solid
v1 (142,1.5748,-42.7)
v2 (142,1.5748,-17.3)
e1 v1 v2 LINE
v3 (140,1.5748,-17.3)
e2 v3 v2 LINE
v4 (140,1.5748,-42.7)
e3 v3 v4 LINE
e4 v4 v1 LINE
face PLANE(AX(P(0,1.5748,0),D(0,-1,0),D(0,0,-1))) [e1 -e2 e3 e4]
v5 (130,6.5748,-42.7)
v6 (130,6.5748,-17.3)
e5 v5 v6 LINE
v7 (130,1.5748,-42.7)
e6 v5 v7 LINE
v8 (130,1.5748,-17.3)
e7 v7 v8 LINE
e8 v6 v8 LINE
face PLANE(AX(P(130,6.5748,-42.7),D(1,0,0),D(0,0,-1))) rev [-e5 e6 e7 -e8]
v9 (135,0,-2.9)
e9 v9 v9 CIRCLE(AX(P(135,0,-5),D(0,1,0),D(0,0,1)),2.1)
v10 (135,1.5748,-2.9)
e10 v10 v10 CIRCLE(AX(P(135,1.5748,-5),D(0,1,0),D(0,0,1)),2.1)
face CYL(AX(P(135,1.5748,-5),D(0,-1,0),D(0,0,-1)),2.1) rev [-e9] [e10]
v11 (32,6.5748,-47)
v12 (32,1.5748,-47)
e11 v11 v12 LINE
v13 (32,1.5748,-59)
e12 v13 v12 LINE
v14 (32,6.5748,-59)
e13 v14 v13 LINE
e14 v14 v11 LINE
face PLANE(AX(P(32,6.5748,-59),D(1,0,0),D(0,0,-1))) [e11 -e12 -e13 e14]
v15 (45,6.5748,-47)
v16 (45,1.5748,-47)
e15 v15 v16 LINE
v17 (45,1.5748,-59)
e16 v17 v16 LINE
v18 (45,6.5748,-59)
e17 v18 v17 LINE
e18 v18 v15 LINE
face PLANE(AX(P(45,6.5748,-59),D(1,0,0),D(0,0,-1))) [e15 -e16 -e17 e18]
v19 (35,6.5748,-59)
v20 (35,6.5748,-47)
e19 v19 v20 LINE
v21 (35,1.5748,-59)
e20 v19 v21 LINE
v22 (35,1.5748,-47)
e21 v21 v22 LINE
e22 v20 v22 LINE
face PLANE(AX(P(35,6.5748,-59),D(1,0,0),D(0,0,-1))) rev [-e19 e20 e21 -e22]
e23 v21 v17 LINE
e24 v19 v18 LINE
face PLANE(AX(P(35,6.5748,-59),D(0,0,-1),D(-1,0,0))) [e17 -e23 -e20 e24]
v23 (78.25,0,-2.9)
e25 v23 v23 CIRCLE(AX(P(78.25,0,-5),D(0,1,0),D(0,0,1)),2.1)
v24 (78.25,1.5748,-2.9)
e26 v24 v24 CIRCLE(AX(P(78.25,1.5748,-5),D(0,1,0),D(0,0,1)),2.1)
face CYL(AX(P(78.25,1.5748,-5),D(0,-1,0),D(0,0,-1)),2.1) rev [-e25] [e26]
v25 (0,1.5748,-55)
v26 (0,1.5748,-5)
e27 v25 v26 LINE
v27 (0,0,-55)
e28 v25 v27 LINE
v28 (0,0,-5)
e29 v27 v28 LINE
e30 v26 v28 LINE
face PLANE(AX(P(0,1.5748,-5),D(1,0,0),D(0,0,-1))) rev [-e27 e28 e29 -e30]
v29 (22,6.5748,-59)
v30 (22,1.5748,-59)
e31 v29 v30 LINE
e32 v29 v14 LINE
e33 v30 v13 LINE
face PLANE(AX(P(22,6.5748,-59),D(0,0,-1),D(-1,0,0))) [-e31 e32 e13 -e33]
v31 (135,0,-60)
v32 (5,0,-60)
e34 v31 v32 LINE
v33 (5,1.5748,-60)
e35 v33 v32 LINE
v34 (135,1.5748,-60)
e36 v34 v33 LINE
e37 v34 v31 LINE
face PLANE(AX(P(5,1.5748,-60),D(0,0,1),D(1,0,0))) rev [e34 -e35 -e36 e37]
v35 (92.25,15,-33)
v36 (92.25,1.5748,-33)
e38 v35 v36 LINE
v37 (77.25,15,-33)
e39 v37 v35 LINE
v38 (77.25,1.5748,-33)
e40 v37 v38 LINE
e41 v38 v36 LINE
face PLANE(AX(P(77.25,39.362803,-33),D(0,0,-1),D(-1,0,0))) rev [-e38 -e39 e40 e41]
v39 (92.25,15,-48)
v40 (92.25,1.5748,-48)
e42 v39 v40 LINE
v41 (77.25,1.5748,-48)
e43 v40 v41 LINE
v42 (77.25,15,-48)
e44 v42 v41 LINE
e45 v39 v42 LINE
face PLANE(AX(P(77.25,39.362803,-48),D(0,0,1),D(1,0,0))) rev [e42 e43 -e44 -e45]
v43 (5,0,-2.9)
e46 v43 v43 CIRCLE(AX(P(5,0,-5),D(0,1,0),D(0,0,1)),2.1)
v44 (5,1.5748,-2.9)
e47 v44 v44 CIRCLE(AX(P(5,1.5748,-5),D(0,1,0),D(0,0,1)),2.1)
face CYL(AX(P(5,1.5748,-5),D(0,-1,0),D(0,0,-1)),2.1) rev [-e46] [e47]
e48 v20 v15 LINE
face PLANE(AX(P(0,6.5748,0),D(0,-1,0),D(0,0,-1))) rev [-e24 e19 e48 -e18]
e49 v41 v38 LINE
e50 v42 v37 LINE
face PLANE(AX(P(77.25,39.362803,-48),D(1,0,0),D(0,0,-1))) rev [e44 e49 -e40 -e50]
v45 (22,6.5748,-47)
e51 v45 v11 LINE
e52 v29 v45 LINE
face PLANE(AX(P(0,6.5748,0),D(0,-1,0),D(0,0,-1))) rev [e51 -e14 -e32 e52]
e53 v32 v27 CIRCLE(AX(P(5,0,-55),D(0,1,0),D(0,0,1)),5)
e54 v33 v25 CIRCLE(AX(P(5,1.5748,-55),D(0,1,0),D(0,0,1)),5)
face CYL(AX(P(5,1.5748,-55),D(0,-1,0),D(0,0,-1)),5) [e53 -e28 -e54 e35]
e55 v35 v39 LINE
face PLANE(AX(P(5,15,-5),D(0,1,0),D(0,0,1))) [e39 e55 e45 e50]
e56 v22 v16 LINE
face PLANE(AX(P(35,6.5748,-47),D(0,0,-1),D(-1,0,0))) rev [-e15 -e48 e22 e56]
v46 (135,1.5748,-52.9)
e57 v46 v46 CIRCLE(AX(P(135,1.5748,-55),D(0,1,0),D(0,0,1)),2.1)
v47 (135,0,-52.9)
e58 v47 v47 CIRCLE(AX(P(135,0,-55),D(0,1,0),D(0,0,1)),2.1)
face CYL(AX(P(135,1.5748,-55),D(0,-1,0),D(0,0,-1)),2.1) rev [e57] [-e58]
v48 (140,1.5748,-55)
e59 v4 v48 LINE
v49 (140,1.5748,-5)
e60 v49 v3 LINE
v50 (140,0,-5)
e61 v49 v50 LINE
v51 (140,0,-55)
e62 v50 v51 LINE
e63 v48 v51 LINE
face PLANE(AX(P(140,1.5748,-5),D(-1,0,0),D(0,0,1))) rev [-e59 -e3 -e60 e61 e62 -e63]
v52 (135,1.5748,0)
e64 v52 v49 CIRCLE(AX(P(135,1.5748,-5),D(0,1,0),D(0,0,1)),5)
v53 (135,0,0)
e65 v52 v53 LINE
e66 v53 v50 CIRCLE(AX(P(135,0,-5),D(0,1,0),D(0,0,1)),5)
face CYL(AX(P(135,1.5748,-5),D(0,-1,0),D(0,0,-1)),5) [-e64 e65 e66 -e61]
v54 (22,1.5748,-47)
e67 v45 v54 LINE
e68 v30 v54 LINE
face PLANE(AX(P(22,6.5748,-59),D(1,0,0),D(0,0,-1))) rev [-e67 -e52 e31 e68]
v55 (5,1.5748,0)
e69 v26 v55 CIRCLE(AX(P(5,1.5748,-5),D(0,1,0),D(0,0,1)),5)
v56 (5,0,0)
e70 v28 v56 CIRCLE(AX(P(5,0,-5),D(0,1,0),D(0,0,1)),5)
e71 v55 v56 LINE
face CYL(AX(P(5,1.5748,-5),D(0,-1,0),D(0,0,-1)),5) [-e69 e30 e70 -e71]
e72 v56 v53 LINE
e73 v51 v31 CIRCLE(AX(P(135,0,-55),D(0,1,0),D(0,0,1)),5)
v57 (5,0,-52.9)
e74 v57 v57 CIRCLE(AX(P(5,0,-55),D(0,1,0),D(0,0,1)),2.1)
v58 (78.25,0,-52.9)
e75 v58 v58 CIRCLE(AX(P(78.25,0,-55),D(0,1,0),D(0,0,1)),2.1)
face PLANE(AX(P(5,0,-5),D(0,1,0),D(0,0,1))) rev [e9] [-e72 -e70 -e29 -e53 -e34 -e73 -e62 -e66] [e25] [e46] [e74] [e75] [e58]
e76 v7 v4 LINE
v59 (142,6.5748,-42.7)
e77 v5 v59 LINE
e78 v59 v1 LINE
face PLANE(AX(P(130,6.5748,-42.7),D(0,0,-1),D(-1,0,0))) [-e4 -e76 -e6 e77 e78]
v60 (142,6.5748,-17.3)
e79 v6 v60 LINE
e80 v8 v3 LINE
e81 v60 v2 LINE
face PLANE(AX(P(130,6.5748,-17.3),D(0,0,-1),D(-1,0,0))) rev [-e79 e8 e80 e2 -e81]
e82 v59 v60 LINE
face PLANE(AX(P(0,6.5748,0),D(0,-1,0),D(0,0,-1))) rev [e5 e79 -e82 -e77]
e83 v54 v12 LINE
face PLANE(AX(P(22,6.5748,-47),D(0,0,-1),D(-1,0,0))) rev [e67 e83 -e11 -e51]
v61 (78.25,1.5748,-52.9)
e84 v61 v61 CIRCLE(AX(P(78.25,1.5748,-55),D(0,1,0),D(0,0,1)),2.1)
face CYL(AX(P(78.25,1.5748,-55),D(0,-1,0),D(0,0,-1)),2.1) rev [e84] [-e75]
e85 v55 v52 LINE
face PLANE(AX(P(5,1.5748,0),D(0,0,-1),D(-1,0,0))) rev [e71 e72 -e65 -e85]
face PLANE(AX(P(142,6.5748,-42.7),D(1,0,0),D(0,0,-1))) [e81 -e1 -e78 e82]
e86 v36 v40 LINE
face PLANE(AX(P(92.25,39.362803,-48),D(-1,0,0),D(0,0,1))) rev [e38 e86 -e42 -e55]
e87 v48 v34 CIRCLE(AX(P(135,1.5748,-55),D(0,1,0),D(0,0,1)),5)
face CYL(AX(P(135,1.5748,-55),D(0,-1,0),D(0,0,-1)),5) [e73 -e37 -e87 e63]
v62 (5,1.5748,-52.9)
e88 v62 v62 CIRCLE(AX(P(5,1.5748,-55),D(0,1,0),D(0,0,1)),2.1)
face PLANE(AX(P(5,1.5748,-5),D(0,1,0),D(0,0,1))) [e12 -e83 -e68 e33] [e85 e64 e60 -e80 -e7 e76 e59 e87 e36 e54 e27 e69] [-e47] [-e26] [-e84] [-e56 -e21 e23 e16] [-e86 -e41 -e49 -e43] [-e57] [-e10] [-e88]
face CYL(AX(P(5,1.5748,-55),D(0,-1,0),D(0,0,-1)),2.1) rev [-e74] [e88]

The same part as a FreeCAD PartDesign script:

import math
import FreeCAD as App
import Part
import Sketcher

V = App.Vector
Q = App.Units.Quantity

doc = App.newDocument("Part")
body = doc.addObject("PartDesign::Body", "Body")

sketch1 = doc.addObject("Sketcher::SketchObject", "Sketch")
body.addObject(sketch1)
sketch1.AttachmentSupport = (doc.XZ_Plane, [""])
sketch1.MapMode = "FlatFace"
sketch1.addGeometry([
    Part.LineSegment(V(5, 0, 0), V(135, 0, 0)),
    Part.ArcOfCircle(Part.Circle(V(135, -5, 0), V(0, 0, 1), 5), math.radians(0), math.radians(90)),
    Part.LineSegment(V(140, -5, 0), V(140, -55, 0)),
    Part.ArcOfCircle(Part.Circle(V(135, -55, 0), V(0, 0, 1), 5), math.radians(-90), math.radians(0)),
    Part.LineSegment(V(135, -60, 0), V(5, -60, 0)),
    Part.ArcOfCircle(Part.Circle(V(5, -55, 0), V(0, 0, 1), 5), math.radians(180), math.radians(270)),
    Part.LineSegment(V(0, -55, 0), V(0, -5, 0)),
    Part.ArcOfCircle(Part.Circle(V(5, -5, 0), V(0, 0, 1), 5), math.radians(90), math.radians(180)),
    Part.Circle(V(5, -5, 0), V(0, 0, 1), 2.1),
    Part.Circle(V(78.2, -5, 0), V(0, 0, 1), 2.1),
    Part.Circle(V(135, -5, 0), V(0, 0, 1), 2.1),
    Part.Circle(V(5, -55, 0), V(0, 0, 1), 2.1),
    Part.Circle(V(78.2, -55, 0), V(0, 0, 1), 2.1),
    Part.Circle(V(135, -55, 0), V(0, 0, 1), 2.1),
], False)
sketch1.addConstraint([
    Sketcher.Constraint("Tangent", 0, 2, 1, 2),
    Sketcher.Constraint("Tangent", 1, 1, 2, 1),
    Sketcher.Constraint("Tangent", 2, 2, 3, 2),
    Sketcher.Constraint("Tangent", 3, 1, 4, 1),
    Sketcher.Constraint("Tangent", 4, 2, 5, 2),
    Sketcher.Constraint("Tangent", 5, 1, 6, 1),
    Sketcher.Constraint("Tangent", 6, 2, 7, 2),
    Sketcher.Constraint("Tangent", 7, 1, 0, 1),
    Sketcher.Constraint("Horizontal", 0),
    Sketcher.Constraint("Vertical", 2),
    Sketcher.Constraint("Horizontal", 4),
    Sketcher.Constraint("Vertical", 6),
    Sketcher.Constraint("Coincident", 8, 3, 7, 3),
    Sketcher.Constraint("Coincident", 10, 3, 1, 3),
    Sketcher.Constraint("Coincident", 11, 3, 5, 3),
    Sketcher.Constraint("Coincident", 13, 3, 3, 3),
    Sketcher.Constraint("Equal", 1, 3),
    Sketcher.Constraint("Equal", 3, 5),
    Sketcher.Constraint("Equal", 5, 7),
    Sketcher.Constraint("Equal", 8, 9),
    Sketcher.Constraint("Equal", 9, 10),
    Sketcher.Constraint("Equal", 10, 11),
    Sketcher.Constraint("Equal", 11, 12),
    Sketcher.Constraint("Equal", 12, 13),
    Sketcher.Constraint("PointOnObject", 0, 2, -1),
    Sketcher.Constraint("PointOnObject", 5, 1, -2),
    Sketcher.Constraint("Horizontal", 8, 3, 9, 3),
    Sketcher.Constraint("Horizontal", 11, 3, 12, 3),
    Sketcher.Constraint("Vertical", 9, 3, 12, 3),
    Sketcher.Constraint("Radius", 1, Q("5 mm")),
    Sketcher.Constraint("Diameter", 8, Q("4.2 mm")),
    Sketcher.Constraint("DistanceX", 0, 1, 0, 2, Q("130 mm")),
    Sketcher.Constraint("DistanceY", 2, 2, 2, 1, Q("50 mm")),
    Sketcher.Constraint("DistanceX", -1, 1, 9, 3, Q("78.25 mm")),
])
pad1 = doc.addObject("PartDesign::Pad", "Pad")
body.addObject(pad1)
pad1.Profile = sketch1
pad1.Length = 1.5748
pad1.Reversed = True

sketch2 = doc.addObject("Sketcher::SketchObject", "Sketch001")
body.addObject(sketch2)
sketch2.AttachmentSupport = (doc.XZ_Plane, [""])
sketch2.MapMode = "FlatFace"
sketch2.AttachmentOffset = App.Placement(V(0, 0, -1.5748), App.Rotation())
sketch2.addGeometry([
    Part.LineSegment(V(130, -43, 0), V(130, -17, 0)),
    Part.LineSegment(V(130, -17, 0), V(142, -17, 0)),
    Part.LineSegment(V(142, -17, 0), V(142, -43, 0)),
    Part.LineSegment(V(142, -43, 0), V(130, -43, 0)),
    Part.LineSegment(V(35, -59, 0), V(35, -47, 0)),
    Part.LineSegment(V(35, -47, 0), V(45, -47, 0)),
    Part.LineSegment(V(45, -47, 0), V(45, -59, 0)),
    Part.LineSegment(V(45, -59, 0), V(35, -59, 0)),
    Part.LineSegment(V(22, -59, 0), V(22, -47, 0)),
    Part.LineSegment(V(22, -47, 0), V(32, -47, 0)),
    Part.LineSegment(V(32, -47, 0), V(32, -59, 0)),
    Part.LineSegment(V(32, -59, 0), V(22, -59, 0)),
], False)
sketch2.addConstraint([
    Sketcher.Constraint("Coincident", 0, 2, 1, 1),
    Sketcher.Constraint("Coincident", 1, 2, 2, 1),
    Sketcher.Constraint("Coincident", 2, 2, 3, 1),
    Sketcher.Constraint("Coincident", 3, 2, 0, 1),
    Sketcher.Constraint("Coincident", 4, 2, 5, 1),
    Sketcher.Constraint("Coincident", 5, 2, 6, 1),
    Sketcher.Constraint("Coincident", 6, 2, 7, 1),
    Sketcher.Constraint("Coincident", 7, 2, 4, 1),
    Sketcher.Constraint("Coincident", 8, 2, 9, 1),
    Sketcher.Constraint("Coincident", 9, 2, 10, 1),
    Sketcher.Constraint("Coincident", 10, 2, 11, 1),
    Sketcher.Constraint("Coincident", 11, 2, 8, 1),
    Sketcher.Constraint("Vertical", 0),
    Sketcher.Constraint("Horizontal", 1),
    Sketcher.Constraint("Vertical", 2),
    Sketcher.Constraint("Horizontal", 3),
    Sketcher.Constraint("Vertical", 4),
    Sketcher.Constraint("Horizontal", 5),
    Sketcher.Constraint("Vertical", 6),
    Sketcher.Constraint("Horizontal", 7),
    Sketcher.Constraint("Vertical", 8),
    Sketcher.Constraint("Horizontal", 9),
    Sketcher.Constraint("Vertical", 10),
    Sketcher.Constraint("Horizontal", 11),
    Sketcher.Constraint("Horizontal", 5, 2, 8, 2),
    Sketcher.Constraint("Horizontal", 7, 2, 10, 2),
    Sketcher.Constraint("Equal", 7, 9),
    Sketcher.Constraint("Equal", 3, 4),
    Sketcher.Constraint("DistanceX", 1, 1, 1, 2, Q("12 mm")),
    Sketcher.Constraint("DistanceX", 5, 1, 5, 2, Q("10 mm")),
    Sketcher.Constraint("DistanceY", 0, 1, 0, 2, Q("25.4 mm")),
    Sketcher.Constraint("DistanceX", -1, 1, 0, 2, Q("130 mm")),
    Sketcher.Constraint("DistanceX", -1, 1, 4, 2, Q("35 mm")),
    Sketcher.Constraint("DistanceY", 4, 2, -1, 1, Q("47 mm")),
    Sketcher.Constraint("DistanceX", -1, 1, 8, 2, Q("22 mm")),
    Sketcher.Constraint("DistanceY", 0, 2, -1, 1, Q("17.3 mm")),
])
pad2 = doc.addObject("PartDesign::Pad", "Pad001")
body.addObject(pad2)
pad2.Profile = sketch2
pad2.Length = 5
pad2.Reversed = True

sketch3 = doc.addObject("Sketcher::SketchObject", "Sketch002")
body.addObject(sketch3)
sketch3.AttachmentSupport = (doc.XZ_Plane, [""])
sketch3.MapMode = "FlatFace"
sketch3.AttachmentOffset = App.Placement(V(0, 0, -1.5748), App.Rotation())
sketch3.addGeometry([
    Part.LineSegment(V(77, -48, 0), V(77, -33, 0)),
    Part.LineSegment(V(77, -33, 0), V(92, -33, 0)),
    Part.LineSegment(V(92, -33, 0), V(92, -48, 0)),
    Part.LineSegment(V(92, -48, 0), V(77, -48, 0)),
], False)
sketch3.addConstraint([
    Sketcher.Constraint("Coincident", 0, 2, 1, 1),
    Sketcher.Constraint("Coincident", 1, 2, 2, 1),
    Sketcher.Constraint("Coincident", 2, 2, 3, 1),
    Sketcher.Constraint("Coincident", 3, 2, 0, 1),
    Sketcher.Constraint("Vertical", 0),
    Sketcher.Constraint("Horizontal", 1),
    Sketcher.Constraint("Vertical", 2),
    Sketcher.Constraint("Horizontal", 3),
    Sketcher.Constraint("Equal", 3, 0),
    Sketcher.Constraint("DistanceX", 1, 1, 1, 2, Q("15 mm")),
    Sketcher.Constraint("DistanceY", 0, 2, -1, 1, Q("33 mm")),
    Sketcher.Constraint("DistanceX", -1, 1, 0, 2, Q("77.25 mm")),
])
pad3 = doc.addObject("PartDesign::Pad", "Pad002")
body.addObject(pad3)
pad3.Profile = sketch3
pad3.Length = 13.4252
pad3.Reversed = True

doc.recompute()
